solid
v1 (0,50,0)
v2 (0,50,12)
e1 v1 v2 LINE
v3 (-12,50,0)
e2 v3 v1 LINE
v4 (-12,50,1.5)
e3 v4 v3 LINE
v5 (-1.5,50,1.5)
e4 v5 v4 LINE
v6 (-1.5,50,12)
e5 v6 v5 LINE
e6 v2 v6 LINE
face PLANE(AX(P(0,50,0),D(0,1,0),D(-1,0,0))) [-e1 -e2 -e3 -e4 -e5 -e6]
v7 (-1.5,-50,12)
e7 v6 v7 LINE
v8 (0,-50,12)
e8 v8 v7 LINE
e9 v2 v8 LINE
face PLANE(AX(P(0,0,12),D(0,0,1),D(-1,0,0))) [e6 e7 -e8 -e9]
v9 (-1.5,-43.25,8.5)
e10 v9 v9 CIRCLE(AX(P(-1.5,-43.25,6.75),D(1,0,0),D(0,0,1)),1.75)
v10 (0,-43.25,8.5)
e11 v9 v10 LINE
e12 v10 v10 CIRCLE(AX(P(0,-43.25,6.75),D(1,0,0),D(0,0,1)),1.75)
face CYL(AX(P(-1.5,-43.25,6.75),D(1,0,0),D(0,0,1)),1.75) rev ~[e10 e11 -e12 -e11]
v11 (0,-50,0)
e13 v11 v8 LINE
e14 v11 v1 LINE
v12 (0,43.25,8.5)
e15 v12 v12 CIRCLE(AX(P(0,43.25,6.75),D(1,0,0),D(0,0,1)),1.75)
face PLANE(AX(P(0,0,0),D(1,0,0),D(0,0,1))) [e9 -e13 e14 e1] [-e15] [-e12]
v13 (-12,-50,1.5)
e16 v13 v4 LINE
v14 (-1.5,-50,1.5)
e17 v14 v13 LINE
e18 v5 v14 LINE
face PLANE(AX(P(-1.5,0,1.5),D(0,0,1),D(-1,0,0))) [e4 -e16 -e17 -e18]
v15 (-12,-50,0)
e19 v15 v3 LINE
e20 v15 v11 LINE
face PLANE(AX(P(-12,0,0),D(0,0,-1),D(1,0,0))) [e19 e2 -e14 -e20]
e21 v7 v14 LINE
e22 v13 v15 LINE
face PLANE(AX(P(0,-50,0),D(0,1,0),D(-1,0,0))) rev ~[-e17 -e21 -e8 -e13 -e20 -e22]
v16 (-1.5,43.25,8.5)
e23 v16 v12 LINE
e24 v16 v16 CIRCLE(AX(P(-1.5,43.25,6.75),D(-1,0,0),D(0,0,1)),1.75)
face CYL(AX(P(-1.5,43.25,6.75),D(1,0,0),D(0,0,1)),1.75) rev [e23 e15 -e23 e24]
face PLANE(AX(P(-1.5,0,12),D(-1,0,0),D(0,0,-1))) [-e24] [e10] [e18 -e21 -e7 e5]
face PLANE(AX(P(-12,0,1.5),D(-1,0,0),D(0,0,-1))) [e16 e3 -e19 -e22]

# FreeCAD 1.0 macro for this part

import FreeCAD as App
import Part
import Sketcher
from FreeCAD import Vector
Q = App.Units.Quantity


def add_polygon(sketch, points):
    """Adds a closed chain of lines whose ends are joined by coincident constraints."""
    first, n = sketch.GeometryCount, len(points)
    for a, b in zip(points, points[1:] + points[:1]):
        sketch.addGeometry(Part.LineSegment(App.Vector(*a, 0), App.Vector(*b, 0)), False)
    for i in range(n):
        sketch.addConstraint(Sketcher.Constraint("Coincident", first + i, 2, first + (i + 1) % n, 1))

doc = App.newDocument("Part")
params = doc.addObject("Spreadsheet::Sheet", "Params")
for row, (alias, value) in enumerate([
    ("sketch1_width", "12 mm"),
    ("sketch1_width2", "10.5 mm"),
    ("pad1_length", "100 mm"),
    ("sketch2_diameter", "3.5 mm"),
    ("hole_diameter", "3.5 mm"),
], start=1):
    params.set(f"A{row}", alias)
    params.set(f"B{row}", "=" + value)
    params.setAlias(f"B{row}", alias)

body = doc.addObject("PartDesign::Body", "Body")

# Sketch on XZ plane
sketch1 = doc.addObject("Sketcher::SketchObject", "Sketch")
body.addObject(sketch1)
sketch1.AttachmentSupport = (doc.XZ_Plane, [""])
sketch1.MapMode = "FlatFace"
add_polygon(sketch1, [(0, 12), (0, 0), (-12, 0), (-12, 1.5), (-1.5, 1.5), (-1.5, 12)])  # lines 0-5
sketch1.addConstraint([
    Sketcher.Constraint("Vertical", 0),
    Sketcher.Constraint("Horizontal", 1),
    Sketcher.Constraint("Vertical", 2),
    Sketcher.Constraint("Horizontal", 3),
    Sketcher.Constraint("Vertical", 4),
    Sketcher.Constraint("Horizontal", 5),
    Sketcher.Constraint("Coincident", 0, 2, -1, 1),
    Sketcher.Constraint("Equal", 1, 0),
    Sketcher.Constraint("Equal", 5, 2),
    Sketcher.Constraint("DistanceX", 1, 2, 1, 1, Q("12 mm")),
    Sketcher.Constraint("DistanceX", 3, 1, 3, 2, Q("10.5 mm")),
])
sketch1.setExpression("Constraints[15]", "Params.sketch1_width")
sketch1.setExpression("Constraints[16]", "Params.sketch1_width2")
pad1 = doc.addObject("PartDesign::Pad", "Pad")
body.addObject(pad1)
pad1.Profile = sketch1
pad1.setExpression("Length", "Params.pad1_length")
pad1.Midplane = True

# Sketch on YZ plane
sketch2 = doc.addObject("Sketcher::SketchObject", "Sketch001")
body.addObject(sketch2)
sketch2.AttachmentSupport = (doc.YZ_Plane, [""])
sketch2.MapMode = "FlatFace"
sketch2.AttachmentOffset = App.Placement(Vector(0, 0, -1.5), App.Rotation())
sketch2.addGeometry(Part.Circle(Vector(-43.2, 6.8, 0), Vector(0, 0, 1), 1.8), False)
sketch2.addConstraint([
    Sketcher.Constraint("Diameter", 0, Q("3.5 mm")),
    Sketcher.Constraint("DistanceX", 0, 3, -1, 1, Q("43.25 mm")),
    Sketcher.Constraint("DistanceY", -1, 1, 0, 3, Q("6.75 mm")),
])
sketch2.setExpression("Constraints[0]", "Params.sketch2_diameter")
doc.recompute()
hole = doc.addObject("PartDesign::Hole", "Hole")
body.addObject(hole)
hole.Profile = sketch2
hole.ThreadType = "None"
hole.setExpression("Diameter", "Params.hole_diameter")
hole.DepthType = "ThroughAll"
hole.Reversed = True
doc.recompute()

mirrored = doc.addObject("PartDesign::Mirrored", "Mirrored")
body.addObject(mirrored)
mirrored.Originals = [hole]
mirrored.MirrorPlane = (doc.XZ_Plane, [""])
body.Tip = mirrored

doc.recompute()
